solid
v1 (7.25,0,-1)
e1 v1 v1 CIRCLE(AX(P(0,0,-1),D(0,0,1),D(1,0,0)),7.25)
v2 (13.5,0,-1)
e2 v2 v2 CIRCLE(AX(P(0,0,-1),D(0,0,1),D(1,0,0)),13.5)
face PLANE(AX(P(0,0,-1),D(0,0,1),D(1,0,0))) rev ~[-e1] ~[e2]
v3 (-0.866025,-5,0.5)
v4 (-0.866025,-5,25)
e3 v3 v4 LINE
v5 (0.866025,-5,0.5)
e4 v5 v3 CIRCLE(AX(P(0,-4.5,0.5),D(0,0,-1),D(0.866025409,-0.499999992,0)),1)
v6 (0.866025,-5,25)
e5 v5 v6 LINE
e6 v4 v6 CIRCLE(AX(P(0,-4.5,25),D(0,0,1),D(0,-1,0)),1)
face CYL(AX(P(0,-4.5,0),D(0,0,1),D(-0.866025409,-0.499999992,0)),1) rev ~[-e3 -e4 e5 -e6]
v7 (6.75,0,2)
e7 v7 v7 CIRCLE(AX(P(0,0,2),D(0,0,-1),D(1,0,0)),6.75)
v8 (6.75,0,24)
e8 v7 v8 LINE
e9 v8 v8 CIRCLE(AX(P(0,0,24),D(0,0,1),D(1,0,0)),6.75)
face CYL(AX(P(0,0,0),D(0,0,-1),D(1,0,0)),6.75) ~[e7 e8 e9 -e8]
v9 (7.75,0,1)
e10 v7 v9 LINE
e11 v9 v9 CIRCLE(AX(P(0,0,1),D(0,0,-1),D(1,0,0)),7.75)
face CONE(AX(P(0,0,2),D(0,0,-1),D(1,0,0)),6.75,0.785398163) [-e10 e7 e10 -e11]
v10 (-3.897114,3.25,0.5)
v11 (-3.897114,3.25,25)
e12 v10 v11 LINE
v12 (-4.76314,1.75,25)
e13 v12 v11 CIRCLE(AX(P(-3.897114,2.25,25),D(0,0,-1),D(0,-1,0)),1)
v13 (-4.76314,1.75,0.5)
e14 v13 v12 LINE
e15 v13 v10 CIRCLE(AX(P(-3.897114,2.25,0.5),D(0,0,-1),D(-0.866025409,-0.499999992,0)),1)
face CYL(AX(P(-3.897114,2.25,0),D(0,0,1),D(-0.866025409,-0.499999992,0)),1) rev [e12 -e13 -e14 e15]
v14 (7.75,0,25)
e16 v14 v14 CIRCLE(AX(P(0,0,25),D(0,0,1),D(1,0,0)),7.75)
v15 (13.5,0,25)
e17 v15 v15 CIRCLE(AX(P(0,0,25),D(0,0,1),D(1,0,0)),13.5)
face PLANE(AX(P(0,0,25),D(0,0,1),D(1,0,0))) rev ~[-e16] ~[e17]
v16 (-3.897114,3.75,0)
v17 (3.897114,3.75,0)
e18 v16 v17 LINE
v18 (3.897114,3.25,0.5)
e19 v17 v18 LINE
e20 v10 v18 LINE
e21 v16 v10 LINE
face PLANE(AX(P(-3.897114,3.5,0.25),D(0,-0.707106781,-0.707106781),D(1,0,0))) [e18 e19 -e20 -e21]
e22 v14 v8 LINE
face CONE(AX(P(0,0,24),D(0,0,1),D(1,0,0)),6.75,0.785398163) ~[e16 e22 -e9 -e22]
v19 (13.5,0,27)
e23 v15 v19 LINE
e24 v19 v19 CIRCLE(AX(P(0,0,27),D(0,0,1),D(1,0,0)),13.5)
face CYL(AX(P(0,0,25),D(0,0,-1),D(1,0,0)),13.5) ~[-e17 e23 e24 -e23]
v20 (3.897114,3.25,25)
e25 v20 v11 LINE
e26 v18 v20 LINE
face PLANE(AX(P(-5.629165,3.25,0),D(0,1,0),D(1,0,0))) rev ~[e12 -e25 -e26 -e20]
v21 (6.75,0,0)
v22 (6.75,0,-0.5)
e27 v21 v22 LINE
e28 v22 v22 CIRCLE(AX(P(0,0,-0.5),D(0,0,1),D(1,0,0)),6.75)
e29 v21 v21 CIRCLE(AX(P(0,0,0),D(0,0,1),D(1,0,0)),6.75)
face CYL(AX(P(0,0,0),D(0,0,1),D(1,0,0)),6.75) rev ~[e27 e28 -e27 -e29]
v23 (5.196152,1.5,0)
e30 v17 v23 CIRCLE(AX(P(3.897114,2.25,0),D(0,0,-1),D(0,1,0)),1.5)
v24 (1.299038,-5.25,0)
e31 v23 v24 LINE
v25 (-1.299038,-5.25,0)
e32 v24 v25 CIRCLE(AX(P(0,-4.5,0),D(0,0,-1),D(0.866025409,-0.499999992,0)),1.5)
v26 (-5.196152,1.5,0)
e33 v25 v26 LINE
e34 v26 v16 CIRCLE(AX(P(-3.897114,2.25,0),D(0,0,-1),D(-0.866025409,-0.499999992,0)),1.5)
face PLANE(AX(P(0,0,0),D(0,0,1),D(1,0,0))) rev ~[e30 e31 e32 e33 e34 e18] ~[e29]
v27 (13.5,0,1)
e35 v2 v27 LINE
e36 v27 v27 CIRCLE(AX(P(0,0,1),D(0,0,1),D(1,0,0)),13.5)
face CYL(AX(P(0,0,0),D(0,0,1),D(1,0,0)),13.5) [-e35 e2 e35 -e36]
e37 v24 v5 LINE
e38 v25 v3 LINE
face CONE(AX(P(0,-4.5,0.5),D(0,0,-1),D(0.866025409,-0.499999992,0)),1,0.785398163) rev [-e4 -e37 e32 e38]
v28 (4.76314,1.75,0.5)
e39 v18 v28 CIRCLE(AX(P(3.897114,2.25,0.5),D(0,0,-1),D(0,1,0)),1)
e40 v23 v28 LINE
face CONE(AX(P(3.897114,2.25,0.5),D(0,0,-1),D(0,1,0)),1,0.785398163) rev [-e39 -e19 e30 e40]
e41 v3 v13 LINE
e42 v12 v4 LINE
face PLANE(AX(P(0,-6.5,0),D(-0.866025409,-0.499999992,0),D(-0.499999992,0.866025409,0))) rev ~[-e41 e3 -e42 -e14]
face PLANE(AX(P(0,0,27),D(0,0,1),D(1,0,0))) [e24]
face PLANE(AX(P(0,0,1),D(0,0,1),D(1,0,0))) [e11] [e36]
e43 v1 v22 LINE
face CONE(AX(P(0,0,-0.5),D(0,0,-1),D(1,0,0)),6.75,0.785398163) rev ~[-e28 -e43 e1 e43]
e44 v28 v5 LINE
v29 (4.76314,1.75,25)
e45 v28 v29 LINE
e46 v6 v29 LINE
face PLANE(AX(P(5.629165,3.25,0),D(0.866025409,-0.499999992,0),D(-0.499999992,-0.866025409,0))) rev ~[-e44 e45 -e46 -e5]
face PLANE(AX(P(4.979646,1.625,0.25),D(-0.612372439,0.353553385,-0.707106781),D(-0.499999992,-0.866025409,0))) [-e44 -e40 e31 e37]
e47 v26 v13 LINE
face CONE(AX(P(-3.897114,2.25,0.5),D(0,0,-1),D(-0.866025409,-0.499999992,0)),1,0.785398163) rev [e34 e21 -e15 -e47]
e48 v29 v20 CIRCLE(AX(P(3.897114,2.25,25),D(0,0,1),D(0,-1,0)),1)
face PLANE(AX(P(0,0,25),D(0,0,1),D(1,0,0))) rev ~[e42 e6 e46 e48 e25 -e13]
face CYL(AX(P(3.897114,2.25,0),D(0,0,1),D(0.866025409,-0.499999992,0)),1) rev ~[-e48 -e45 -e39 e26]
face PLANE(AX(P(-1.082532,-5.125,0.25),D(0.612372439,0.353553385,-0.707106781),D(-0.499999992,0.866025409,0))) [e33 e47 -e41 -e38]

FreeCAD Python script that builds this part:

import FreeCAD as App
import Part
import Sketcher

V = App.Vector
Q = App.Units.Quantity


def edges_at(feature, points):
    """Names of the edges that pass closest to the given points."""
    edges = feature.Shape.Edges
    near = lambda p: min(range(len(edges)), key=lambda i: edges[i].distToShape(Part.Vertex(*p))[0])
    return sorted({f"Edge{near(p) + 1}" for p in points})


def add_polygon(sketch, points):
    """Adds a closed chain of lines whose ends are joined by coincident constraints."""
    first, n = sketch.GeometryCount, len(points)
    for a, b in zip(points, points[1:] + points[:1]):
        sketch.addGeometry(Part.LineSegment(App.Vector(*a, 0), App.Vector(*b, 0)), False)
    for i in range(n):
        sketch.addConstraint(Sketcher.Constraint("Coincident", first + i, 2, first + (i + 1) % n, 1))

doc = App.newDocument("Part")
params = doc.addObject("Spreadsheet::Sheet", "Params")
for row, (alias, value) in enumerate([
    ("sketch1_diameter", "27 mm"),
    ("sketch1_diameter2", "13.5 mm"),
    ("pad1_length", "1 mm"),
    ("sketch2_diameter", "27 mm"),
    ("pad2_length", "1 mm"),
    ("sketch3_diameter", "13.5 mm"),
    ("pad3_length", "25 mm"),
    ("pocket1_length", "30 mm"),
    ("fillet_radius", "1 mm"),
    ("sketch5_diameter", "27 mm"),
    ("pad4_length", "2 mm"),
    ("chamfer_size", "1 mm"),
    ("chamfer2_size", "0.5 mm"),
    ("chamfer3_size", "0.5 mm"),
], start=1):
    params.set(f"A{row}", alias)
    params.set(f"B{row}", "=" + value)
    params.setAlias(f"B{row}", alias)

body = doc.addObject("PartDesign::Body", "Body")

# Sketch on XY plane
sketch1 = body.newObject("Sketcher::SketchObject", "Sketch")
sketch1.AttachmentSupport = (doc.getObject("XY_Plane"), [""])
sketch1.MapMode = "FlatFace"
sketch1.addGeometry([
    Part.Circle(V(0, 0, 0), V(0, 0, 1), 14),
    Part.Circle(V(0, 0, 0), V(0, 0, 1), 7),
], False)
sketch1.addConstraint([
    Sketcher.Constraint("Coincident", 0, 3, -1, 1),
    Sketcher.Constraint("Coincident", 1, 3, -1, 1),
    Sketcher.Constraint("Diameter", 0, 27.0),
    Sketcher.Constraint("Diameter", 1, 13.5),
])
sketch1.setExpression("Constraints[2]", "Params.sketch1_diameter")
sketch1.setExpression("Constraints[3]", "Params.sketch1_diameter2")
pad1 = body.newObject("PartDesign::Pad", "Pad")
pad1.Profile = sketch1
pad1.setExpression("Length", "Params.pad1_length")
pad1.Reversed = True

# Sketch on XY plane
sketch2 = body.newObject("Sketcher::SketchObject", "Sketch001")
sketch2.AttachmentSupport = (doc.getObject("XY_Plane"), [""])
sketch2.MapMode = "FlatFace"
sketch2.addGeometry(Part.Circle(V(0, 0, 0), V(0, 0, 1), 14), False)
sketch2.addConstraint([
    Sketcher.Constraint("Coincident", 0, 3, -1, 1),
    Sketcher.Constraint("Diameter", 0, 27.0),
])
sketch2.setExpression("Constraints[1]", "Params.sketch2_diameter")
pad2 = body.newObject("PartDesign::Pad", "Pad001")
pad2.Profile = sketch2
pad2.setExpression("Length", "Params.pad2_length")

# Sketch on XY plane
sketch3 = body.newObject("Sketcher::SketchObject", "Sketch002")
sketch3.AttachmentSupport = (doc.getObject("XY_Plane"), [""])
sketch3.MapMode = "FlatFace"
sketch3.addGeometry(Part.Circle(V(0, 0, 0), V(0, 0, 1), 7), False)
sketch3.addConstraint([
    Sketcher.Constraint("Coincident", 0, 3, -1, 1),
    Sketcher.Constraint("Diameter", 0, 13.5),
])
sketch3.setExpression("Constraints[1]", "Params.sketch3_diameter")
pad3 = body.newObject("PartDesign::Pad", "Pad002")
pad3.Profile = sketch3
pad3.setExpression("Length", "Params.pad3_length")

# Sketch on XY plane
sketch4 = body.newObject("Sketcher::SketchObject", "Sketch003")
sketch4.AttachmentSupport = (doc.getObject("XY_Plane"), [""])
sketch4.MapMode = "FlatFace"
add_polygon(sketch4, [(6, 3), (-6, 3), (0, -6)])  # lines 0-2
sketch4.addConstraint([
    Sketcher.Constraint("Horizontal", 0),
    Sketcher.Constraint("PointOnObject", 1, 2, -2),
    Sketcher.Constraint("Equal", 1, 2),
    Sketcher.Constraint("Angle", 1, Q("-60.000001 deg")),
    Sketcher.Constraint("DistanceY", 1, 2, -1, 1, 6.5),
    Sketcher.Constraint("DistanceY", -1, 1, 0, 2, 3.25),
])
pocket1 = body.newObject("PartDesign::Pocket", "Pocket")
pocket1.Profile = sketch4
pocket1.setExpression("Length", "Params.pocket1_length")
pocket1.Reversed = True
doc.recompute()

fillet = body.newObject("PartDesign::Fillet", "Fillet")
fillet.Base = (pocket1, edges_at(pocket1, [(5.629, 3.25, 12.5), (-5.629, 3.25, 12.5), (0, -6.5, 12.5)]))
fillet.setExpression("Radius", "Params.fillet_radius")

# Sketch on XY plane
sketch5 = body.newObject("Sketcher::SketchObject", "Sketch004")
sketch5.AttachmentSupport = (doc.getObject("XY_Plane"), [""])
sketch5.MapMode = "FlatFace"
sketch5.AttachmentOffset = App.Placement(V(0, 0, 25), App.Rotation())
sketch5.addGeometry(Part.Circle(V(0, 0, 0), V(0, 0, 1), 14), False)
sketch5.addConstraint([
    Sketcher.Constraint("Coincident", 0, 3, -1, 1),
    Sketcher.Constraint("Diameter", 0, 27.0),
])
sketch5.setExpression("Constraints[1]", "Params.sketch5_diameter")
pad4 = body.newObject("PartDesign::Pad", "Pad003")
pad4.Profile = sketch5
pad4.setExpression("Length", "Params.pad4_length")
doc.recompute()

chamfer = body.newObject("PartDesign::Chamfer", "Chamfer")
chamfer.Base = (pad4, edges_at(pad4, [(-6.75, 0, 1), (-6.75, 0, 25)]))
chamfer.setExpression("Size", "Params.chamfer_size")
doc.recompute()

chamfer2 = body.newObject("PartDesign::Chamfer", "Chamfer001")
chamfer2.Base = (chamfer, edges_at(chamfer, [(-6.75, 0, -1)]))
chamfer2.setExpression("Size", "Params.chamfer2_size")
doc.recompute()

chamfer3 = body.newObject("PartDesign::Chamfer", "Chamfer002")
chamfer3.Base = (chamfer2, edges_at(chamfer2, [(2.815, -1.625, 0)]))
chamfer3.setExpression("Size", "Params.chamfer3_size")

doc.recompute()
